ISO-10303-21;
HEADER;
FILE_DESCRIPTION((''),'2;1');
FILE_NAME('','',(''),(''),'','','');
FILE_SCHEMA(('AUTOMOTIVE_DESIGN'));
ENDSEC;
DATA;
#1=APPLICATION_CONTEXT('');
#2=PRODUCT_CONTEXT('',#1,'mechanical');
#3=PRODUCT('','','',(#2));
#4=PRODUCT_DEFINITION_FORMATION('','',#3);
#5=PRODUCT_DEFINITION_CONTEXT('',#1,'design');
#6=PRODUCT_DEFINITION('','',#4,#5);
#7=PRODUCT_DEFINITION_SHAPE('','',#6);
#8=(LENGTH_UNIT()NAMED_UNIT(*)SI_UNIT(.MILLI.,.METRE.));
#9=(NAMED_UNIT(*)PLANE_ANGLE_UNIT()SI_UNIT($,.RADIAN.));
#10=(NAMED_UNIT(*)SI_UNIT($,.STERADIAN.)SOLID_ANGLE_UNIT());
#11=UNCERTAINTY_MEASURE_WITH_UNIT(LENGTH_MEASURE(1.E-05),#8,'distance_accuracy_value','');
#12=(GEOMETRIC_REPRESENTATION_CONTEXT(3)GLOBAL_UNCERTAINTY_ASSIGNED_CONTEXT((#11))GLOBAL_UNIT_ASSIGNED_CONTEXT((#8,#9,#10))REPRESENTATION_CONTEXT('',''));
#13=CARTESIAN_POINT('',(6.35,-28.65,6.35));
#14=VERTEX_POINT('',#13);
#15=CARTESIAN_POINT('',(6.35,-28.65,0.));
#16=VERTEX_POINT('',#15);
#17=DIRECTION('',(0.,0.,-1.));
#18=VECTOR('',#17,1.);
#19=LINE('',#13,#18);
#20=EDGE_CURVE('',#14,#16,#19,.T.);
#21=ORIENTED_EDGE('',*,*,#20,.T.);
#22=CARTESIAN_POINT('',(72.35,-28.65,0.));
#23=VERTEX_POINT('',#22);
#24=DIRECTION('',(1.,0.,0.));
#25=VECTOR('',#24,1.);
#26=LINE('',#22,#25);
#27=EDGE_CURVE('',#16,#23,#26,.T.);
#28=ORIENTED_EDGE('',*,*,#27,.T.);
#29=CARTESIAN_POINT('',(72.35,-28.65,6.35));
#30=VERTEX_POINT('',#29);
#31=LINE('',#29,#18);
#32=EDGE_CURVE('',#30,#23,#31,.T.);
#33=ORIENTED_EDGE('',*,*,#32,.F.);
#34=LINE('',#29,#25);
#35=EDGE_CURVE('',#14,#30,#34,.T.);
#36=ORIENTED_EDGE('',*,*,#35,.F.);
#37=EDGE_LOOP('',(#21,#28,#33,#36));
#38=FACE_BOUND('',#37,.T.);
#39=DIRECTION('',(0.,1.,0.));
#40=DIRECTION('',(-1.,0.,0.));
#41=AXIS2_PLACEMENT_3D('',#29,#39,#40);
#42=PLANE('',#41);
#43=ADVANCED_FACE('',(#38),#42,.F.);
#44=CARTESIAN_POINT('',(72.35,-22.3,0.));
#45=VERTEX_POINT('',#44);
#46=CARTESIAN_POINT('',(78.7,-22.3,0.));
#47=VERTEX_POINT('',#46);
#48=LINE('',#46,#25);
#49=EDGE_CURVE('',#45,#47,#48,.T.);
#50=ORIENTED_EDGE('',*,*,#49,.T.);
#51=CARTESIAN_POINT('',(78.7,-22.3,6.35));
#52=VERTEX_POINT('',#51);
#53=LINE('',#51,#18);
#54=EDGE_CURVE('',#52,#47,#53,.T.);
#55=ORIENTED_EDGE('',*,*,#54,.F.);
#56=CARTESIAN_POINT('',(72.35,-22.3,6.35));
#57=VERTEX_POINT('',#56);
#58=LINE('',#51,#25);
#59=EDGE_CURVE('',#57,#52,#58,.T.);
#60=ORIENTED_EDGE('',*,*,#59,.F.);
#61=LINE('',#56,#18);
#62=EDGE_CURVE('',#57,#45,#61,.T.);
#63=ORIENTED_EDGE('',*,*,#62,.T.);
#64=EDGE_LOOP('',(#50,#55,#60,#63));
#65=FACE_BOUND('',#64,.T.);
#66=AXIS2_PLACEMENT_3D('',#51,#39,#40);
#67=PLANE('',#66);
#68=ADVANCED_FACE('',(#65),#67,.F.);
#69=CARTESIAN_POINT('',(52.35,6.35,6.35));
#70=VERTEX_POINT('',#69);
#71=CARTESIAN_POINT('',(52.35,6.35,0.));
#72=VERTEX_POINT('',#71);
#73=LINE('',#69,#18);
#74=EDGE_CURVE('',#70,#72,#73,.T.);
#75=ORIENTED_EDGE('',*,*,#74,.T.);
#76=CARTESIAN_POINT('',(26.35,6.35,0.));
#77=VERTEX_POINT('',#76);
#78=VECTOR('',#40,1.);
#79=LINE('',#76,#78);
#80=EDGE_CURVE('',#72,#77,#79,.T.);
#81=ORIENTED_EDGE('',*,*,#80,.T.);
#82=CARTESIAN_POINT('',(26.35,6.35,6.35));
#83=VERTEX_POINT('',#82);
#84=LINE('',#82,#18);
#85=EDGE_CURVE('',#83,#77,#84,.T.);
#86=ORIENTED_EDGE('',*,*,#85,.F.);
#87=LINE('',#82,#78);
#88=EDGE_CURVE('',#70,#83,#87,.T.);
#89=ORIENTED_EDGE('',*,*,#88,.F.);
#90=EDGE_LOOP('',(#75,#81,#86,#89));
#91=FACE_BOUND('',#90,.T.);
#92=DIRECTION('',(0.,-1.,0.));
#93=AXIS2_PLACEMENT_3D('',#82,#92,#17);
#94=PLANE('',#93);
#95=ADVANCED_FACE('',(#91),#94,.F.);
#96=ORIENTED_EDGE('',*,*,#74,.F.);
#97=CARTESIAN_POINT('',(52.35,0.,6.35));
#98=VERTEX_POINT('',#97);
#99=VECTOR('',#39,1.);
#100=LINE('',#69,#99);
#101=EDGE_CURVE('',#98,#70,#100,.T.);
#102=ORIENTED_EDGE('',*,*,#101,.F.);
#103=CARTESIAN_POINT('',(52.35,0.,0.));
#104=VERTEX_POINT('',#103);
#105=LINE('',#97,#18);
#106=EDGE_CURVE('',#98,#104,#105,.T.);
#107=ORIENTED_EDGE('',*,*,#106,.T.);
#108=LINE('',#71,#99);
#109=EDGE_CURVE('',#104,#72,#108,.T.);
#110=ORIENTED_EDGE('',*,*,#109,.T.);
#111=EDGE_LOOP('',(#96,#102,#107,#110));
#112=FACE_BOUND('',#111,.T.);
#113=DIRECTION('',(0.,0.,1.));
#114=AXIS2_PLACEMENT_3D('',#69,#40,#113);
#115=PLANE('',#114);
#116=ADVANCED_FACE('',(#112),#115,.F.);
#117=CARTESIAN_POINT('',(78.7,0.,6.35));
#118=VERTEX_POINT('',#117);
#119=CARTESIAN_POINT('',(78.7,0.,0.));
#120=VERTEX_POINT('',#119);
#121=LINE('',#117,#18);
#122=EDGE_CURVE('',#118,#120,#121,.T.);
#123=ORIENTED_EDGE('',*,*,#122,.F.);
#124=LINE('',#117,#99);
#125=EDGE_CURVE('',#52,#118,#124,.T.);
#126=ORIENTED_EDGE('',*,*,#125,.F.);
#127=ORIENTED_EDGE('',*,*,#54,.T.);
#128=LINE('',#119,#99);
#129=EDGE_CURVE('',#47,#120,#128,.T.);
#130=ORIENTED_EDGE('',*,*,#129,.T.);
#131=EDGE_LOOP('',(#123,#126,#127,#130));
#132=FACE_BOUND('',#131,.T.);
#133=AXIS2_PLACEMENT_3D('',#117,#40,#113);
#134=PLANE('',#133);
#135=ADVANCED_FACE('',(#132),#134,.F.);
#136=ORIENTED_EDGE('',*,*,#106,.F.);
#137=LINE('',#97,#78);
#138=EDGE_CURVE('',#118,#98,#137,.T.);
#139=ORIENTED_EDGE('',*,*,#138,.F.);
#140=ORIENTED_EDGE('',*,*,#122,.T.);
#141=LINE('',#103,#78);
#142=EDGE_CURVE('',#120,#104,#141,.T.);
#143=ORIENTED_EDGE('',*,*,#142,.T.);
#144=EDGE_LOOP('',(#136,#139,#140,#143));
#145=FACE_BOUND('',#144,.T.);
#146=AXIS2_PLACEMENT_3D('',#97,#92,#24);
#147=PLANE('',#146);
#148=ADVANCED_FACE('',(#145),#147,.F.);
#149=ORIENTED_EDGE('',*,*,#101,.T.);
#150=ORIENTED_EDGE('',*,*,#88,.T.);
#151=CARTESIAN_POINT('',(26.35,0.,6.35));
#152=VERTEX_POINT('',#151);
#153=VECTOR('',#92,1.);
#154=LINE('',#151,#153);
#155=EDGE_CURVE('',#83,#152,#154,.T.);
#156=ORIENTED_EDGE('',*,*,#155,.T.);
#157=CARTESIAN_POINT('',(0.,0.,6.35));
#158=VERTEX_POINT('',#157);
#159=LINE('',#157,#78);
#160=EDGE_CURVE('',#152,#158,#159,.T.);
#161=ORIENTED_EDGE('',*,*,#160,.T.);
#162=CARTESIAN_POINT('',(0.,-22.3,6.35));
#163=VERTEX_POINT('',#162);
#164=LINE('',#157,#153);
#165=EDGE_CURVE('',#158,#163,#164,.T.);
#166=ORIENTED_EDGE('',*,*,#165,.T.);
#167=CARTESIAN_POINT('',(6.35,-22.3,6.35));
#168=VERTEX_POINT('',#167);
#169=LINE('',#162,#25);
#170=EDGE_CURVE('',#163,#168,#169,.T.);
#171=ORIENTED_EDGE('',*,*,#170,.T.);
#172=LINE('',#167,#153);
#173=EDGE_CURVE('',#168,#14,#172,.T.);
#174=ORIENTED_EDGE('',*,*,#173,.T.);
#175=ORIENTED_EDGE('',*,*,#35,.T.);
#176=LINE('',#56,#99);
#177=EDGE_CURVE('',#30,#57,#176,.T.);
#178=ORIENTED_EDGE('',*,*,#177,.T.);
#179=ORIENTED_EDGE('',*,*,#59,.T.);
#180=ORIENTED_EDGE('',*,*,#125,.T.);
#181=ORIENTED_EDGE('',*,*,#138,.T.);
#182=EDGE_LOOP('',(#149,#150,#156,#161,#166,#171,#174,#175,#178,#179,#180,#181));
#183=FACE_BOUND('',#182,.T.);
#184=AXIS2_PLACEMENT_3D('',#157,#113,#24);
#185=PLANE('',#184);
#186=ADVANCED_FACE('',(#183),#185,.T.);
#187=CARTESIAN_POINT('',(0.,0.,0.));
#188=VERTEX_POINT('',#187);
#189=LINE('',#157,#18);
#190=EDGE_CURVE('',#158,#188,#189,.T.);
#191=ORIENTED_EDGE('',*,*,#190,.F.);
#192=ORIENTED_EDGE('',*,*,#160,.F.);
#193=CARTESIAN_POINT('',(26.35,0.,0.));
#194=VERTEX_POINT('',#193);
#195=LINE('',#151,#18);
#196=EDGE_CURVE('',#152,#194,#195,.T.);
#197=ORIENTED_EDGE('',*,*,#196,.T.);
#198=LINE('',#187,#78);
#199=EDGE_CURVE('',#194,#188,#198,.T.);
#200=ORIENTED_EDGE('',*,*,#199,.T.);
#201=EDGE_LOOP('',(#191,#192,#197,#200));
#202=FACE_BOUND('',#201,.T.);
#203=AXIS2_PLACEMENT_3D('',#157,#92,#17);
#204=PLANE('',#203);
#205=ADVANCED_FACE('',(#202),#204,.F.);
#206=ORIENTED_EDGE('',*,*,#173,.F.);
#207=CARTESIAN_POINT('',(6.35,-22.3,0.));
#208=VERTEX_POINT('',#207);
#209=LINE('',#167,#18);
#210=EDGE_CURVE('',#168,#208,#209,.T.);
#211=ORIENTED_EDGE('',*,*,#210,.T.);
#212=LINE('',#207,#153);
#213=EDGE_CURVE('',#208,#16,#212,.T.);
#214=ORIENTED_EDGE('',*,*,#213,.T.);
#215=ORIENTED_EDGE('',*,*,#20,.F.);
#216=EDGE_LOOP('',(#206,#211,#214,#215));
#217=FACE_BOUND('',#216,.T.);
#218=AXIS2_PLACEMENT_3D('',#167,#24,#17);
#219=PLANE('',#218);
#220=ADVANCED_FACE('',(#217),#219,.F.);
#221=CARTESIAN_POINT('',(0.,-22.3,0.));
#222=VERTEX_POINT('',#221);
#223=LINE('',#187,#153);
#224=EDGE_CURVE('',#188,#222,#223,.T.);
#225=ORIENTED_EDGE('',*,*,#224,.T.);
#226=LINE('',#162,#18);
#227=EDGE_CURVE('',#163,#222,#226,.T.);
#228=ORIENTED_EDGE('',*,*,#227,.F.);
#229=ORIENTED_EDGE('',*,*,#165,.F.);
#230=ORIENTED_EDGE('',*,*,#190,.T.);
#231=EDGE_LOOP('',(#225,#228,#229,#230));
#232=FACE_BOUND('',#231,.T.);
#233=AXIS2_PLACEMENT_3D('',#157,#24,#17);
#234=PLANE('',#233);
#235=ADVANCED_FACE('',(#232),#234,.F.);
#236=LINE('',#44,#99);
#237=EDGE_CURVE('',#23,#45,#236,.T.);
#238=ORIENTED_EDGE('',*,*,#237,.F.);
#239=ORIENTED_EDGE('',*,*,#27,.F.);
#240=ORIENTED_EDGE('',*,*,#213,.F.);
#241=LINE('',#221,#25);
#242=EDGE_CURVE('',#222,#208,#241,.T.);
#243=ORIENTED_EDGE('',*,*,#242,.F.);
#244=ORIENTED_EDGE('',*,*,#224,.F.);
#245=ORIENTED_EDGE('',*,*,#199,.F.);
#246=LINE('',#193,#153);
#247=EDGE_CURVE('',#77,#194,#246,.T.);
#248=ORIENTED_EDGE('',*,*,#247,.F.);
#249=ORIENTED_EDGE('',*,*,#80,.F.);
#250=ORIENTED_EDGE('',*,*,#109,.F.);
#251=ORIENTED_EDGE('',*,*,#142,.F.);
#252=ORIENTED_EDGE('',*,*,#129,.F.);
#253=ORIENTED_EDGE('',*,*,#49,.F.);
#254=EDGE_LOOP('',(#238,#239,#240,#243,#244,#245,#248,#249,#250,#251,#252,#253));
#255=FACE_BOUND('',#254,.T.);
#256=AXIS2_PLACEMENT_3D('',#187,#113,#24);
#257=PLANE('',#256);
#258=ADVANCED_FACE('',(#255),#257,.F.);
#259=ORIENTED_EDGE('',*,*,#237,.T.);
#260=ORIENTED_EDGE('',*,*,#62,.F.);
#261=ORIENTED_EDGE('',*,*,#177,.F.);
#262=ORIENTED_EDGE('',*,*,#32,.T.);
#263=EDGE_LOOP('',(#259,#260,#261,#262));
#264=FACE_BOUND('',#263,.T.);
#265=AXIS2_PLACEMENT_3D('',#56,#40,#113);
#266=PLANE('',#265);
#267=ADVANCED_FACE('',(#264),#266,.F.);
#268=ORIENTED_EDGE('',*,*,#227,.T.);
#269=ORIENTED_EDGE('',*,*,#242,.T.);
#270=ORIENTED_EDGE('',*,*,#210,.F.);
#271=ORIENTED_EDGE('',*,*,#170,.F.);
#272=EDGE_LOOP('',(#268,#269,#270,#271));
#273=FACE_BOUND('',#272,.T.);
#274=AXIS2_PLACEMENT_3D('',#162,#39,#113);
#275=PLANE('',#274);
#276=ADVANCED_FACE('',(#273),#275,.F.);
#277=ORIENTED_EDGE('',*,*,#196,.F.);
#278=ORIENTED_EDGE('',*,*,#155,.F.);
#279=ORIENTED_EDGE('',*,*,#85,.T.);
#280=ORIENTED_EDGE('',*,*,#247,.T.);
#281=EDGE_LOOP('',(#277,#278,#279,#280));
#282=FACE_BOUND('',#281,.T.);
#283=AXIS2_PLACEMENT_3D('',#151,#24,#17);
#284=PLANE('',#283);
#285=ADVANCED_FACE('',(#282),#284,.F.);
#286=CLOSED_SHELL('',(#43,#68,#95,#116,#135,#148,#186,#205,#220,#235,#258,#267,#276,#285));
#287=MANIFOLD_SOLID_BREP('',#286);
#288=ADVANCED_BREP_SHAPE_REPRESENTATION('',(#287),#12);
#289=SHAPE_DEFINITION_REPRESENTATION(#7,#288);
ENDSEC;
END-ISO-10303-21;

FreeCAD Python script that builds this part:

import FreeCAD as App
import Part
import Sketcher

V = App.Vector
Q = App.Units.Quantity


def add_polygon(sketch, points):
    """Adds a closed chain of lines whose ends are joined by coincident constraints."""
    first, n = sketch.GeometryCount, len(points)
    for a, b in zip(points, points[1:] + points[:1]):
        sketch.addGeometry(Part.LineSegment(App.Vector(*a, 0), App.Vector(*b, 0)), False)
    for i in range(n):
        sketch.addConstraint(Sketcher.Constraint("Coincident", first + i, 2, first + (i + 1) % n, 1))

doc = App.newDocument("Part")
body = doc.addObject("PartDesign::Body", "Body")

# Sketch on XY plane
sketch1 = body.newObject("Sketcher::SketchObject", "Sketch")
sketch1.AttachmentSupport = (doc.getObject("XY_Plane"), [""])
sketch1.MapMode = "FlatFace"
add_polygon(sketch1, [(26.35, 0), (0, 0), (0, -22.3), (6.35, -22.3), (6.35, -28.65), (72.35, -28.65), (72.35, -22.3), (78.7, -22.3), (78.7, 0), (52.35, 0), (52.35, 6.35), (26.35, 6.35)])  # lines 0-11
sketch1.addConstraint(Sketcher.Constraint("Horizontal", 0))
sketch1.addConstraint(Sketcher.Constraint("Vertical", 1))
sketch1.addConstraint(Sketcher.Constraint("Horizontal", 2))
sketch1.addConstraint(Sketcher.Constraint("Vertical", 3))
sketch1.addConstraint(Sketcher.Constraint("Horizontal", 4))
sketch1.addConstraint(Sketcher.Constraint("Vertical", 5))
sketch1.addConstraint(Sketcher.Constraint("Horizontal", 6))
sketch1.addConstraint(Sketcher.Constraint("Vertical", 7))
sketch1.addConstraint(Sketcher.Constraint("Horizontal", 8))
sketch1.addConstraint(Sketcher.Constraint("Vertical", 9))
sketch1.addConstraint(Sketcher.Constraint("Horizontal", 10))
sketch1.addConstraint(Sketcher.Constraint("Vertical", 11))
sketch1.addConstraint(Sketcher.Constraint("Coincident", 0, 2, -1, 1))
sketch1.addConstraint(Sketcher.Constraint("PointOnObject", 7, 2, -1))
sketch1.addConstraint(Sketcher.Constraint("Horizontal", 2, 2, 5, 2))
sketch1.addConstraint(Sketcher.Constraint("Equal", 2, 6))
sketch1.addConstraint(Sketcher.Constraint("Equal", 0, 8))
sketch1.addConstraint(Sketcher.Constraint("Equal", 6, 3))
sketch1.addConstraint(Sketcher.Constraint("Equal", 5, 9))
sketch1.addConstraint(Sketcher.Constraint("DistanceX", 4, 1, 4, 2, Q("66 mm")))
sketch1.addConstraint(Sketcher.Constraint("DistanceX", 10, 2, 10, 1, Q("26 mm")))
sketch1.addConstraint(Sketcher.Constraint("DistanceY", 1, 2, 1, 1, Q("22.3 mm")))
sketch1.addConstraint(Sketcher.Constraint("DistanceY", 4, 2, 9, 2, Q("35 mm")))
pad1 = body.newObject("PartDesign::Pad", "Pad")
pad1.Profile = sketch1
pad1.Length = 6.35

doc.recompute()
